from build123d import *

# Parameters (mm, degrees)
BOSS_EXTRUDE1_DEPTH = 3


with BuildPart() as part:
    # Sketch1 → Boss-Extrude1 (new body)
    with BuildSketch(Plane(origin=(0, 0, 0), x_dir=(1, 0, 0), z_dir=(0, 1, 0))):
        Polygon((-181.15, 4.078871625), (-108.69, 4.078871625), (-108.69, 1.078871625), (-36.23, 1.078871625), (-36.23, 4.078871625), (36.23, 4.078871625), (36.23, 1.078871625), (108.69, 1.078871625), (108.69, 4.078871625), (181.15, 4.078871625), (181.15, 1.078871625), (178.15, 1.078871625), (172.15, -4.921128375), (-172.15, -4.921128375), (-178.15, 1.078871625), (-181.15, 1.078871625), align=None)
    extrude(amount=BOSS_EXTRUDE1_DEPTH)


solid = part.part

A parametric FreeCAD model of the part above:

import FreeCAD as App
import Part
import Sketcher
from FreeCAD import Vector

doc = App.newDocument("Part")
params = doc.addObject("Spreadsheet::Sheet", "Params")
for row, (alias, value) in enumerate([
    ("sketch1_width", "3 mm"),
    ("sketch1_width2", "344.3 mm"),
    ("pad1_length", "3 mm"),
], start=1):
    params.set(f"A{row}", alias)
    params.set(f"B{row}", "=" + value)
    params.setAlias(f"B{row}", alias)

body = doc.addObject("PartDesign::Body", "Body")

# Sketch on XZ plane
sketch1 = body.newObject("Sketcher::SketchObject", "Sketch")
sketch1.AttachmentSupport = (doc.getObject("XZ_Plane"), [""])
sketch1.MapMode = "FlatFace"
sketch1.addGeometry([
    Part.LineSegment(Vector(-108.7, -4.1, 0), Vector(-181.2, -4.1, 0)),  # 0
    Part.LineSegment(Vector(-181.2, -4.1, 0), Vector(-181.2, -1.1, 0)),  # 1
    Part.LineSegment(Vector(-181.2, -1.1, 0), Vector(-178.2, -1.1, 0)),  # 2
    Part.LineSegment(Vector(-178.2, -1.1, 0), Vector(-172.2, 4.9, 0)),  # 3
    Part.LineSegment(Vector(-172.2, 4.9, 0), Vector(172.2, 4.9, 0)),  # 4
    Part.LineSegment(Vector(172.2, 4.9, 0), Vector(178.2, -1.1, 0)),  # 5
    Part.LineSegment(Vector(178.2, -1.1, 0), Vector(181.2, -1.1, 0)),  # 6
    Part.LineSegment(Vector(181.2, -1.1, 0), Vector(181.2, -4.1, 0)),  # 7
    Part.LineSegment(Vector(181.2, -4.1, 0), Vector(108.7, -4.1, 0)),  # 8
    Part.LineSegment(Vector(108.7, -4.1, 0), Vector(108.7, -1.1, 0)),  # 9
    Part.LineSegment(Vector(108.7, -1.1, 0), Vector(36.2, -1.1, 0)),  # 10
    Part.LineSegment(Vector(36.2, -1.1, 0), Vector(36.2, -4.1, 0)),  # 11
    Part.LineSegment(Vector(36.2, -4.1, 0), Vector(-36.2, -4.1, 0)),  # 12
    Part.LineSegment(Vector(-36.2, -4.1, 0), Vector(-36.2, -1.1, 0)),  # 13
    Part.LineSegment(Vector(-36.2, -1.1, 0), Vector(-108.7, -1.1, 0)),  # 14
    Part.LineSegment(Vector(-108.7, -1.1, 0), Vector(-108.7, -4.1, 0)),  # 15
], False)
sketch1.addConstraint([
    Sketcher.Constraint("Coincident", 0, 2, 1, 1),
    Sketcher.Constraint("Coincident", 1, 2, 2, 1),
    Sketcher.Constraint("Coincident", 2, 2, 3, 1),
    Sketcher.Constraint("Coincident", 3, 2, 4, 1),
    Sketcher.Constraint("Coincident", 4, 2, 5, 1),
    Sketcher.Constraint("Coincident", 5, 2, 6, 1),
    Sketcher.Constraint("Coincident", 6, 2, 7, 1),
    Sketcher.Constraint("Coincident", 7, 2, 8, 1),
    Sketcher.Constraint("Coincident", 8, 2, 9, 1),
    Sketcher.Constraint("Coincident", 9, 2, 10, 1),
    Sketcher.Constraint("Coincident", 10, 2, 11, 1),
    Sketcher.Constraint("Coincident", 11, 2, 12, 1),
    Sketcher.Constraint("Coincident", 12, 2, 13, 1),
    Sketcher.Constraint("Coincident", 13, 2, 14, 1),
    Sketcher.Constraint("Coincident", 14, 2, 15, 1),
    Sketcher.Constraint("Coincident", 15, 2, 0, 1),
    Sketcher.Constraint("Horizontal", 0),
    Sketcher.Constraint("Vertical", 1),
    Sketcher.Constraint("Horizontal", 2),
    Sketcher.Constraint("Horizontal", 4),
    Sketcher.Constraint("Horizontal", 6),
    Sketcher.Constraint("Vertical", 7),
    Sketcher.Constraint("Horizontal", 8),
    Sketcher.Constraint("Vertical", 9),
    Sketcher.Constraint("Horizontal", 10),
    Sketcher.Constraint("Vertical", 11),
    Sketcher.Constraint("Horizontal", 12),
    Sketcher.Constraint("Vertical", 13),
    Sketcher.Constraint("Horizontal", 14),
    Sketcher.Constraint("Vertical", 15),
    Sketcher.Constraint("Symmetric", 2, 2, 5, 2, -2),
    Sketcher.Constraint("Symmetric", 0, 2, 7, 2, -2),
    Sketcher.Constraint("Symmetric", 10, 2, 13, 2, -2),
    Sketcher.Constraint("Perpendicular", 3, 5),
    Sketcher.Constraint("Horizontal", 6, 2, 9, 2),
    Sketcher.Constraint("Horizontal", 8, 2, 11, 2),
    Sketcher.Constraint("Equal", 0, 8),
    Sketcher.Constraint("Equal", 8, 10),
    Sketcher.Constraint("Equal", 10, 12),
    Sketcher.Constraint("Equal", 6, 1),
    Sketcher.Constraint("Equal", 3, 5),
    Sketcher.Constraint("DistanceX", 2, 1, 2, 2, 3.0),
    Sketcher.Constraint("DistanceX", 4, 1, 4, 2, 344.3),
    Sketcher.Constraint("DistanceX", 2, 2, 3, 2, 6.0),
    Sketcher.Constraint("DistanceY", 0, 2, -1, 1, 4.078872),
])
sketch1.setExpression("Constraints[41]", "Params.sketch1_width")
sketch1.setExpression("Constraints[42]", "Params.sketch1_width2")
pad1 = body.newObject("PartDesign::Pad", "Pad")
pad1.Profile = sketch1
pad1.setExpression("Length", "Params.pad1_length")
pad1.Reversed = True

doc.recompute()
